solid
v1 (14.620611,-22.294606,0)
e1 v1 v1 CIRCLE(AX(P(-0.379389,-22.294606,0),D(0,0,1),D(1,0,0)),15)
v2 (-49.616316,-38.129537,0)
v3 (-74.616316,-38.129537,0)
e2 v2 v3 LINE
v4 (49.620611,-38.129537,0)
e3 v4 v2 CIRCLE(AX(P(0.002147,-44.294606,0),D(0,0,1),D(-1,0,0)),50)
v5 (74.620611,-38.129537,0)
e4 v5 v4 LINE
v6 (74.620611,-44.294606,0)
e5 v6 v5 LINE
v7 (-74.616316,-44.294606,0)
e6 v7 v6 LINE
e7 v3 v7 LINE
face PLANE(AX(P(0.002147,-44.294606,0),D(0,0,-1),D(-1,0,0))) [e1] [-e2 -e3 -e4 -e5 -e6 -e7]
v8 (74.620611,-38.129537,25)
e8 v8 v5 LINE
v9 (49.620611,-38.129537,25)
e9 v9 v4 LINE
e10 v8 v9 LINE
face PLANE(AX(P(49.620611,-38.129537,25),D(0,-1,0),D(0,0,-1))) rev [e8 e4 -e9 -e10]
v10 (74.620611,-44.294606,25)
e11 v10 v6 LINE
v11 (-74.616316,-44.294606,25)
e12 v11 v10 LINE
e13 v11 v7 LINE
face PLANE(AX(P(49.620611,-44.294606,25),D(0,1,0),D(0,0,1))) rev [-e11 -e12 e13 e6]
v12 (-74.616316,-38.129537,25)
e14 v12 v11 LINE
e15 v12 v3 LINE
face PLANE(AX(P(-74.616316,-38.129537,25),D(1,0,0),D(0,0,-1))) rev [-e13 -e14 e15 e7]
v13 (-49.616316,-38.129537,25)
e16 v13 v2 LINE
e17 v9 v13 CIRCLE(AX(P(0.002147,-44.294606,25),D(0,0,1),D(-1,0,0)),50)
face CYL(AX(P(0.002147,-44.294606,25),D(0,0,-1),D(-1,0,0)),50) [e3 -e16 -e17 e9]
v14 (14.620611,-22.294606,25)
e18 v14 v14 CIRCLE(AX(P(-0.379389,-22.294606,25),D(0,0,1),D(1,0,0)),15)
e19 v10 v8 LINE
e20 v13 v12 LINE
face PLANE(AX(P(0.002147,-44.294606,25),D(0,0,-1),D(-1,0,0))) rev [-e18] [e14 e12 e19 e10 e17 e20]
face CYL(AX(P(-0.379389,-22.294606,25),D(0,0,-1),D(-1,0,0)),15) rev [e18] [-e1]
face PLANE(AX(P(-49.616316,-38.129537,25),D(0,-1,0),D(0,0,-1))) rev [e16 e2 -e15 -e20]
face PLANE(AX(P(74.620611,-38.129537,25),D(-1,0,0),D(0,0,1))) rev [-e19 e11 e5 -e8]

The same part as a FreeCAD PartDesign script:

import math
import FreeCAD as App
import Part
import Sketcher
from FreeCAD import Vector
Q = App.Units.Quantity

doc = App.newDocument("Part")
params = doc.addObject("Spreadsheet::Sheet", "Params")
for row, (alias, value) in enumerate([
    ("sketch1_diameter", "30 mm"),
    ("sketch1_radius", "50 mm"),
    ("sketch1_width", "25 mm"),
    ("pad1_length", "25 mm"),
], start=1):
    params.set(f"A{row}", alias)
    params.set(f"B{row}", "=" + value)
    params.setAlias(f"B{row}", alias)

body = doc.addObject("PartDesign::Body", "Body")

sketch1 = body.newObject("Sketcher::SketchObject", "Sketch")
sketch1.AttachmentSupport = (doc.getObject("XY_Plane"), [""])
sketch1.MapMode = "FlatFace"
sketch1.addGeometry([
    Part.LineSegment(Vector(75, -44, 0), Vector(75, -38, 0)),
    Part.LineSegment(Vector(75, -38, 0), Vector(50, -38, 0)),
    Part.ArcOfCircle(Part.Circle(Vector(0, -44, 0), Vector(0, 0, 1), 50), math.radians(7), math.radians(173)),
    Part.LineSegment(Vector(-50, -38, 0), Vector(-75, -38, 0)),
    Part.LineSegment(Vector(-75, -38, 0), Vector(-75, -44, 0)),
    Part.LineSegment(Vector(-75, -44, 0), Vector(75, -44, 0)),
    Part.Circle(Vector(0, -22, 0), Vector(0, 0, 1), 15),
], False)
sketch1.addConstraint([
    Sketcher.Constraint("Coincident", 0, 2, 1, 1),
    Sketcher.Constraint("Coincident", 1, 2, 2, 1),
    Sketcher.Constraint("Coincident", 2, 2, 3, 1),
    Sketcher.Constraint("Coincident", 3, 2, 4, 1),
    Sketcher.Constraint("Coincident", 4, 2, 5, 1),
    Sketcher.Constraint("Coincident", 5, 2, 0, 1),
    Sketcher.Constraint("Vertical", 0),
    Sketcher.Constraint("Horizontal", 1),
    Sketcher.Constraint("Horizontal", 3),
    Sketcher.Constraint("Vertical", 4),
    Sketcher.Constraint("Horizontal", 5),
    Sketcher.Constraint("Horizontal", 1, 2, 2, 2),
    Sketcher.Constraint("Horizontal", 2, 3, 4, 2),
    Sketcher.Constraint("Equal", 1, 3),
    Sketcher.Constraint("Diameter", 6, Q("30 mm")),
    Sketcher.Constraint("Radius", 2, Q("50 mm")),
    Sketcher.Constraint("DistanceX", 1, 2, 1, 1, Q("25 mm")),
    Sketcher.Constraint("DistanceY", 2, 3, 6, 3, Q("22 mm")),
    Sketcher.Constraint("DistanceX", 6, 3, 0, 2, Q("75 mm")),
    Sketcher.Constraint("DistanceY", 0, 1, 0, 2, Q("6.165069 mm")),
    Sketcher.Constraint("DistanceX", 6, 3, -1, 1, Q("0.379389 mm")),
    Sketcher.Constraint("DistanceY", 2, 3, -1, 1, Q("44.294606 mm")),
])
sketch1.setExpression("Constraints[14]", "Params.sketch1_diameter")
sketch1.setExpression("Constraints[15]", "Params.sketch1_radius")
sketch1.setExpression("Constraints[16]", "Params.sketch1_width")
pad1 = body.newObject("PartDesign::Pad", "Pad")
pad1.Profile = sketch1
pad1.setExpression("Length", "Params.pad1_length")

doc.recompute()
